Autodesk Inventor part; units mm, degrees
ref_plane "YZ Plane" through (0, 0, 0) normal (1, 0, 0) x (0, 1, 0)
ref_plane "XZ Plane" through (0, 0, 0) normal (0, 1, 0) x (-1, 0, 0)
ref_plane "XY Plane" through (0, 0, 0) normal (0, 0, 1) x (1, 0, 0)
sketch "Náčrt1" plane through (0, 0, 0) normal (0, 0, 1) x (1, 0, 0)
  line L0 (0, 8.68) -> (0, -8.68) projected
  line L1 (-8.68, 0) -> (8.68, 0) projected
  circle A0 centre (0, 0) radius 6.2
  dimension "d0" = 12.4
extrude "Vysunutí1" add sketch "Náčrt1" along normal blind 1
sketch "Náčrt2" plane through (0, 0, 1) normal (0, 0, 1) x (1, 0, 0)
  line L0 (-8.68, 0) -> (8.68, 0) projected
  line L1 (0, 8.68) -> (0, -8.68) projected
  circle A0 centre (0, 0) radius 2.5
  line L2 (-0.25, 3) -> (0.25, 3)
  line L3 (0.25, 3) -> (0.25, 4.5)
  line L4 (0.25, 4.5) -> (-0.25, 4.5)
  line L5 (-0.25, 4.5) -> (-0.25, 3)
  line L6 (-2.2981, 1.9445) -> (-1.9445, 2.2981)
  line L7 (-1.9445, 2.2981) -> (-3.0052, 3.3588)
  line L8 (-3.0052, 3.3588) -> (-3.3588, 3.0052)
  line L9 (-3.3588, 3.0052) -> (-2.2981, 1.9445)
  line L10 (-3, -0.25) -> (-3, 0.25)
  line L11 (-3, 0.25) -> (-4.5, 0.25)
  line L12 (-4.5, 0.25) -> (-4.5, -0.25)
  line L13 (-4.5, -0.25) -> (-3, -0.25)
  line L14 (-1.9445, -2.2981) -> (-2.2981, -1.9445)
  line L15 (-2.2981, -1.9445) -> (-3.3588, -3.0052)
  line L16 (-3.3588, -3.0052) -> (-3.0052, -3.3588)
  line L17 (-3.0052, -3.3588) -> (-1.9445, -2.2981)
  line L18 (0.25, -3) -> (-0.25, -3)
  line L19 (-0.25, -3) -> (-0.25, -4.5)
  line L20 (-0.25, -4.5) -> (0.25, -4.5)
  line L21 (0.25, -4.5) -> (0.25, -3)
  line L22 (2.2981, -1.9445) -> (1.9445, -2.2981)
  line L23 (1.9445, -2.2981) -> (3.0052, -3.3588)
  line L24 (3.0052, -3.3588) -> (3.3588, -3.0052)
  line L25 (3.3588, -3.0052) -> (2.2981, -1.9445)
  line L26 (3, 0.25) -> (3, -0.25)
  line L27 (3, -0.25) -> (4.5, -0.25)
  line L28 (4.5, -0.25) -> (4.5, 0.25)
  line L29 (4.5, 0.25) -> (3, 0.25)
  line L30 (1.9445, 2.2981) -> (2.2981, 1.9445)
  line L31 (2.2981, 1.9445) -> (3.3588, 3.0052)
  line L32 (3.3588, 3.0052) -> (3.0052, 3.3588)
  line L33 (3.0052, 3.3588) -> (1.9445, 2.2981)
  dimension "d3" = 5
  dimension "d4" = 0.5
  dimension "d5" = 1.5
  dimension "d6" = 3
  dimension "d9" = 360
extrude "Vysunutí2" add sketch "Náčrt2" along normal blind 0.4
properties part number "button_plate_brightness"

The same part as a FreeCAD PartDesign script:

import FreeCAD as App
import Part
import Sketcher
from FreeCAD import Vector
Q = App.Units.Quantity

doc = App.newDocument("Part")
body = doc.addObject("PartDesign::Body", "Body")

# Sketch on XY plane
sketch1 = doc.addObject("Sketcher::SketchObject", "Sketch")
body.addObject(sketch1)
sketch1.AttachmentSupport = (doc.XY_Plane, [""])
sketch1.MapMode = "FlatFace"
sketch1.addGeometry(Part.Circle(Vector(0, 0, 0), Vector(0, 0, 1), 6), False)
sketch1.addConstraint([
    Sketcher.Constraint("Coincident", 0, 3, -1, 1),
    Sketcher.Constraint("Diameter", 0, Q("12.4 mm")),
])
pad1 = doc.addObject("PartDesign::Pad", "Pad")
body.addObject(pad1)
pad1.Profile = sketch1
pad1.Length = 1

# Sketch on XY plane
sketch2 = doc.addObject("Sketcher::SketchObject", "Sketch001")
body.addObject(sketch2)
sketch2.AttachmentSupport = (doc.XY_Plane, [""])
sketch2.MapMode = "FlatFace"
sketch2.AttachmentOffset = App.Placement(Vector(0, 0, 1), App.Rotation())
sketch2.addGeometry([
    Part.LineSegment(Vector(-4.5, 0.2, 0), Vector(-4.5, -0.2, 0)),  # 0
    Part.LineSegment(Vector(-4.5, -0.2, 0), Vector(-3, -0.2, 0)),  # 1
    Part.LineSegment(Vector(-3, -0.2, 0), Vector(-3, 0.2, 0)),  # 2
    Part.LineSegment(Vector(-3, 0.2, 0), Vector(-4.5, 0.2, 0)),  # 3
    Part.LineSegment(Vector(-0.2, 3, 0), Vector(0.2, 3, 0)),  # 4
    Part.LineSegment(Vector(0.2, 3, 0), Vector(0.2, 4.5, 0)),  # 5
    Part.LineSegment(Vector(0.2, 4.5, 0), Vector(-0.2, 4.5, 0)),  # 6
    Part.LineSegment(Vector(-0.2, 4.5, 0), Vector(-0.2, 3, 0)),  # 7
    Part.LineSegment(Vector(3, 0.2, 0), Vector(3, -0.2, 0)),  # 8
    Part.LineSegment(Vector(3, -0.2, 0), Vector(4.5, -0.2, 0)),  # 9
    Part.LineSegment(Vector(4.5, -0.2, 0), Vector(4.5, 0.2, 0)),  # 10
    Part.LineSegment(Vector(4.5, 0.2, 0), Vector(3, 0.2, 0)),  # 11
    Part.LineSegment(Vector(0.2, -3, 0), Vector(-0.2, -3, 0)),  # 12
    Part.LineSegment(Vector(-0.2, -3, 0), Vector(-0.2, -4.5, 0)),  # 13
    Part.LineSegment(Vector(-0.2, -4.5, 0), Vector(0.2, -4.5, 0)),  # 14
    Part.LineSegment(Vector(0.2, -4.5, 0), Vector(0.2, -3, 0)),  # 15
    Part.Circle(Vector(0, 0, 0), Vector(0, 0, 1), 2.5),  # 16
    Part.LineSegment(Vector(-3.4, 3, 0), Vector(-2.3, 1.9, 0)),  # 17
    Part.LineSegment(Vector(-2.3, 1.9, 0), Vector(-1.9, 2.3, 0)),  # 18
    Part.LineSegment(Vector(-1.9, 2.3, 0), Vector(-3, 3.4, 0)),  # 19
    Part.LineSegment(Vector(-3, 3.4, 0), Vector(-3.4, 3, 0)),  # 20
    Part.LineSegment(Vector(-3, -3.4, 0), Vector(-1.9, -2.3, 0)),  # 21
    Part.LineSegment(Vector(-1.9, -2.3, 0), Vector(-2.3, -1.9, 0)),  # 22
    Part.LineSegment(Vector(-2.3, -1.9, 0), Vector(-3.4, -3, 0)),  # 23
    Part.LineSegment(Vector(-3.4, -3, 0), Vector(-3, -3.4, 0)),  # 24
    Part.LineSegment(Vector(3.4, -3, 0), Vector(2.3, -1.9, 0)),  # 25
    Part.LineSegment(Vector(2.3, -1.9, 0), Vector(1.9, -2.3, 0)),  # 26
    Part.LineSegment(Vector(1.9, -2.3, 0), Vector(3, -3.4, 0)),  # 27
    Part.LineSegment(Vector(3, -3.4, 0), Vector(3.4, -3, 0)),  # 28
    Part.LineSegment(Vector(3, 3.4, 0), Vector(1.9, 2.3, 0)),  # 29
    Part.LineSegment(Vector(1.9, 2.3, 0), Vector(2.3, 1.9, 0)),  # 30
    Part.LineSegment(Vector(2.3, 1.9, 0), Vector(3.4, 3, 0)),  # 31
    Part.LineSegment(Vector(3.4, 3, 0), Vector(3, 3.4, 0)),  # 32
], False)
sketch2.addConstraint([
    Sketcher.Constraint("Coincident", 0, 2, 1, 1),
    Sketcher.Constraint("Coincident", 1, 2, 2, 1),
    Sketcher.Constraint("Coincident", 2, 2, 3, 1),
    Sketcher.Constraint("Coincident", 3, 2, 0, 1),
    Sketcher.Constraint("Coincident", 4, 2, 5, 1),
    Sketcher.Constraint("Coincident", 5, 2, 6, 1),
    Sketcher.Constraint("Coincident", 6, 2, 7, 1),
    Sketcher.Constraint("Coincident", 7, 2, 4, 1),
    Sketcher.Constraint("Coincident", 8, 2, 9, 1),
    Sketcher.Constraint("Coincident", 9, 2, 10, 1),
    Sketcher.Constraint("Coincident", 10, 2, 11, 1),
    Sketcher.Constraint("Coincident", 11, 2, 8, 1),
    Sketcher.Constraint("Coincident", 12, 2, 13, 1),
    Sketcher.Constraint("Coincident", 13, 2, 14, 1),
    Sketcher.Constraint("Coincident", 14, 2, 15, 1),
    Sketcher.Constraint("Coincident", 15, 2, 12, 1),
    Sketcher.Constraint("Coincident", 17, 2, 18, 1),
    Sketcher.Constraint("Coincident", 18, 2, 19, 1),
    Sketcher.Constraint("Coincident", 19, 2, 20, 1),
    Sketcher.Constraint("Coincident", 20, 2, 17, 1),
    Sketcher.Constraint("Coincident", 21, 2, 22, 1),
    Sketcher.Constraint("Coincident", 22, 2, 23, 1),
    Sketcher.Constraint("Coincident", 23, 2, 24, 1),
    Sketcher.Constraint("Coincident", 24, 2, 21, 1),
    Sketcher.Constraint("Coincident", 25, 2, 26, 1),
    Sketcher.Constraint("Coincident", 26, 2, 27, 1),
    Sketcher.Constraint("Coincident", 27, 2, 28, 1),
    Sketcher.Constraint("Coincident", 28, 2, 25, 1),
    Sketcher.Constraint("Coincident", 29, 2, 30, 1),
    Sketcher.Constraint("Coincident", 30, 2, 31, 1),
    Sketcher.Constraint("Coincident", 31, 2, 32, 1),
    Sketcher.Constraint("Coincident", 32, 2, 29, 1),
    Sketcher.Constraint("Vertical", 0),
    Sketcher.Constraint("Horizontal", 1),
    Sketcher.Constraint("Vertical", 2),
    Sketcher.Constraint("Horizontal", 3),
    Sketcher.Constraint("Horizontal", 4),
    Sketcher.Constraint("Vertical", 5),
    Sketcher.Constraint("Horizontal", 6),
    Sketcher.Constraint("Vertical", 7),
    Sketcher.Constraint("Vertical", 8),
    Sketcher.Constraint("Horizontal", 9),
    Sketcher.Constraint("Vertical", 10),
    Sketcher.Constraint("Horizontal", 11),
    Sketcher.Constraint("Horizontal", 12),
    Sketcher.Constraint("Vertical", 13),
    Sketcher.Constraint("Horizontal", 14),
    Sketcher.Constraint("Vertical", 15),
    Sketcher.Constraint("Coincident", 16, 3, -1, 1),
    Sketcher.Constraint("Symmetric", 2, 2, 8, 2, -1, 1),
    Sketcher.Constraint("Symmetric", 0, 2, 10, 2, -1, 1),
    Sketcher.Constraint("Symmetric", 4, 2, 12, 2, -1, 1),
    Sketcher.Constraint("Symmetric", 6, 2, 14, 2, -1, 1),
    Sketcher.Constraint("Symmetric", 17, 2, 25, 2, -1, 1),
    Sketcher.Constraint("Symmetric", 18, 2, 26, 2, -1, 1),
    Sketcher.Constraint("Symmetric", 19, 2, 27, 2, -1, 1),
    Sketcher.Constraint("Symmetric", 20, 2, 28, 2, -1, 1),
    Sketcher.Constraint("Symmetric", 21, 2, 29, 2, -1, 1),
    Sketcher.Constraint("Symmetric", 22, 2, 30, 2, -1, 1),
    Sketcher.Constraint("Symmetric", 23, 2, 31, 2, -1, 1),
    Sketcher.Constraint("Symmetric", 24, 2, 32, 2, -1, 1),
    Sketcher.Constraint("Symmetric", 22, 2, 25, 2, -2),
    Sketcher.Constraint("Symmetric", 21, 2, 26, 2, -2),
    Sketcher.Constraint("Symmetric", 24, 2, 27, 2, -2),
    Sketcher.Constraint("Symmetric", 23, 2, 28, 2, -2),
    Sketcher.Constraint("Perpendicular", 17, 18),
    Sketcher.Constraint("Perpendicular", 18, 19),
    Sketcher.Constraint("Perpendicular", 19, 20),
    Sketcher.Constraint("Parallel", 20, 21),
    Sketcher.Constraint("Horizontal", 1, 2, 8, 2),
    Sketcher.Constraint("Vertical", 7, 2, 12, 2),
    Sketcher.Constraint("Equal", 14, 0),
    Sketcher.Constraint("Equal", 11, 5),
    Sketcher.Constraint("Diameter", 16, Q("5 mm")),
    Sketcher.Constraint("DistanceX", 1, 1, 1, 2, Q("1.5 mm")),
    Sketcher.Constraint("DistanceX", 4, 1, 4, 2, Q("0.5 mm")),
    Sketcher.Constraint("DistanceX", 1, 2, -1, 1, Q("3 mm")),
    Sketcher.Constraint("DistanceY", -1, 1, 4, 2, Q("3 mm")),
    Sketcher.Constraint("Distance", 17, Q("1.5 mm")),
    Sketcher.Constraint("Distance", 18, Q("0.5 mm")),
    Sketcher.Constraint("DistanceX", 17, 2, -1, 1, Q("2.298 mm")),
    Sketcher.Constraint("DistanceY", -1, 1, 18, 2, Q("2.298 mm")),
])
pad2 = doc.addObject("PartDesign::Pad", "Pad001")
body.addObject(pad2)
pad2.Profile = sketch2
pad2.Length = 0.4

doc.recompute()
